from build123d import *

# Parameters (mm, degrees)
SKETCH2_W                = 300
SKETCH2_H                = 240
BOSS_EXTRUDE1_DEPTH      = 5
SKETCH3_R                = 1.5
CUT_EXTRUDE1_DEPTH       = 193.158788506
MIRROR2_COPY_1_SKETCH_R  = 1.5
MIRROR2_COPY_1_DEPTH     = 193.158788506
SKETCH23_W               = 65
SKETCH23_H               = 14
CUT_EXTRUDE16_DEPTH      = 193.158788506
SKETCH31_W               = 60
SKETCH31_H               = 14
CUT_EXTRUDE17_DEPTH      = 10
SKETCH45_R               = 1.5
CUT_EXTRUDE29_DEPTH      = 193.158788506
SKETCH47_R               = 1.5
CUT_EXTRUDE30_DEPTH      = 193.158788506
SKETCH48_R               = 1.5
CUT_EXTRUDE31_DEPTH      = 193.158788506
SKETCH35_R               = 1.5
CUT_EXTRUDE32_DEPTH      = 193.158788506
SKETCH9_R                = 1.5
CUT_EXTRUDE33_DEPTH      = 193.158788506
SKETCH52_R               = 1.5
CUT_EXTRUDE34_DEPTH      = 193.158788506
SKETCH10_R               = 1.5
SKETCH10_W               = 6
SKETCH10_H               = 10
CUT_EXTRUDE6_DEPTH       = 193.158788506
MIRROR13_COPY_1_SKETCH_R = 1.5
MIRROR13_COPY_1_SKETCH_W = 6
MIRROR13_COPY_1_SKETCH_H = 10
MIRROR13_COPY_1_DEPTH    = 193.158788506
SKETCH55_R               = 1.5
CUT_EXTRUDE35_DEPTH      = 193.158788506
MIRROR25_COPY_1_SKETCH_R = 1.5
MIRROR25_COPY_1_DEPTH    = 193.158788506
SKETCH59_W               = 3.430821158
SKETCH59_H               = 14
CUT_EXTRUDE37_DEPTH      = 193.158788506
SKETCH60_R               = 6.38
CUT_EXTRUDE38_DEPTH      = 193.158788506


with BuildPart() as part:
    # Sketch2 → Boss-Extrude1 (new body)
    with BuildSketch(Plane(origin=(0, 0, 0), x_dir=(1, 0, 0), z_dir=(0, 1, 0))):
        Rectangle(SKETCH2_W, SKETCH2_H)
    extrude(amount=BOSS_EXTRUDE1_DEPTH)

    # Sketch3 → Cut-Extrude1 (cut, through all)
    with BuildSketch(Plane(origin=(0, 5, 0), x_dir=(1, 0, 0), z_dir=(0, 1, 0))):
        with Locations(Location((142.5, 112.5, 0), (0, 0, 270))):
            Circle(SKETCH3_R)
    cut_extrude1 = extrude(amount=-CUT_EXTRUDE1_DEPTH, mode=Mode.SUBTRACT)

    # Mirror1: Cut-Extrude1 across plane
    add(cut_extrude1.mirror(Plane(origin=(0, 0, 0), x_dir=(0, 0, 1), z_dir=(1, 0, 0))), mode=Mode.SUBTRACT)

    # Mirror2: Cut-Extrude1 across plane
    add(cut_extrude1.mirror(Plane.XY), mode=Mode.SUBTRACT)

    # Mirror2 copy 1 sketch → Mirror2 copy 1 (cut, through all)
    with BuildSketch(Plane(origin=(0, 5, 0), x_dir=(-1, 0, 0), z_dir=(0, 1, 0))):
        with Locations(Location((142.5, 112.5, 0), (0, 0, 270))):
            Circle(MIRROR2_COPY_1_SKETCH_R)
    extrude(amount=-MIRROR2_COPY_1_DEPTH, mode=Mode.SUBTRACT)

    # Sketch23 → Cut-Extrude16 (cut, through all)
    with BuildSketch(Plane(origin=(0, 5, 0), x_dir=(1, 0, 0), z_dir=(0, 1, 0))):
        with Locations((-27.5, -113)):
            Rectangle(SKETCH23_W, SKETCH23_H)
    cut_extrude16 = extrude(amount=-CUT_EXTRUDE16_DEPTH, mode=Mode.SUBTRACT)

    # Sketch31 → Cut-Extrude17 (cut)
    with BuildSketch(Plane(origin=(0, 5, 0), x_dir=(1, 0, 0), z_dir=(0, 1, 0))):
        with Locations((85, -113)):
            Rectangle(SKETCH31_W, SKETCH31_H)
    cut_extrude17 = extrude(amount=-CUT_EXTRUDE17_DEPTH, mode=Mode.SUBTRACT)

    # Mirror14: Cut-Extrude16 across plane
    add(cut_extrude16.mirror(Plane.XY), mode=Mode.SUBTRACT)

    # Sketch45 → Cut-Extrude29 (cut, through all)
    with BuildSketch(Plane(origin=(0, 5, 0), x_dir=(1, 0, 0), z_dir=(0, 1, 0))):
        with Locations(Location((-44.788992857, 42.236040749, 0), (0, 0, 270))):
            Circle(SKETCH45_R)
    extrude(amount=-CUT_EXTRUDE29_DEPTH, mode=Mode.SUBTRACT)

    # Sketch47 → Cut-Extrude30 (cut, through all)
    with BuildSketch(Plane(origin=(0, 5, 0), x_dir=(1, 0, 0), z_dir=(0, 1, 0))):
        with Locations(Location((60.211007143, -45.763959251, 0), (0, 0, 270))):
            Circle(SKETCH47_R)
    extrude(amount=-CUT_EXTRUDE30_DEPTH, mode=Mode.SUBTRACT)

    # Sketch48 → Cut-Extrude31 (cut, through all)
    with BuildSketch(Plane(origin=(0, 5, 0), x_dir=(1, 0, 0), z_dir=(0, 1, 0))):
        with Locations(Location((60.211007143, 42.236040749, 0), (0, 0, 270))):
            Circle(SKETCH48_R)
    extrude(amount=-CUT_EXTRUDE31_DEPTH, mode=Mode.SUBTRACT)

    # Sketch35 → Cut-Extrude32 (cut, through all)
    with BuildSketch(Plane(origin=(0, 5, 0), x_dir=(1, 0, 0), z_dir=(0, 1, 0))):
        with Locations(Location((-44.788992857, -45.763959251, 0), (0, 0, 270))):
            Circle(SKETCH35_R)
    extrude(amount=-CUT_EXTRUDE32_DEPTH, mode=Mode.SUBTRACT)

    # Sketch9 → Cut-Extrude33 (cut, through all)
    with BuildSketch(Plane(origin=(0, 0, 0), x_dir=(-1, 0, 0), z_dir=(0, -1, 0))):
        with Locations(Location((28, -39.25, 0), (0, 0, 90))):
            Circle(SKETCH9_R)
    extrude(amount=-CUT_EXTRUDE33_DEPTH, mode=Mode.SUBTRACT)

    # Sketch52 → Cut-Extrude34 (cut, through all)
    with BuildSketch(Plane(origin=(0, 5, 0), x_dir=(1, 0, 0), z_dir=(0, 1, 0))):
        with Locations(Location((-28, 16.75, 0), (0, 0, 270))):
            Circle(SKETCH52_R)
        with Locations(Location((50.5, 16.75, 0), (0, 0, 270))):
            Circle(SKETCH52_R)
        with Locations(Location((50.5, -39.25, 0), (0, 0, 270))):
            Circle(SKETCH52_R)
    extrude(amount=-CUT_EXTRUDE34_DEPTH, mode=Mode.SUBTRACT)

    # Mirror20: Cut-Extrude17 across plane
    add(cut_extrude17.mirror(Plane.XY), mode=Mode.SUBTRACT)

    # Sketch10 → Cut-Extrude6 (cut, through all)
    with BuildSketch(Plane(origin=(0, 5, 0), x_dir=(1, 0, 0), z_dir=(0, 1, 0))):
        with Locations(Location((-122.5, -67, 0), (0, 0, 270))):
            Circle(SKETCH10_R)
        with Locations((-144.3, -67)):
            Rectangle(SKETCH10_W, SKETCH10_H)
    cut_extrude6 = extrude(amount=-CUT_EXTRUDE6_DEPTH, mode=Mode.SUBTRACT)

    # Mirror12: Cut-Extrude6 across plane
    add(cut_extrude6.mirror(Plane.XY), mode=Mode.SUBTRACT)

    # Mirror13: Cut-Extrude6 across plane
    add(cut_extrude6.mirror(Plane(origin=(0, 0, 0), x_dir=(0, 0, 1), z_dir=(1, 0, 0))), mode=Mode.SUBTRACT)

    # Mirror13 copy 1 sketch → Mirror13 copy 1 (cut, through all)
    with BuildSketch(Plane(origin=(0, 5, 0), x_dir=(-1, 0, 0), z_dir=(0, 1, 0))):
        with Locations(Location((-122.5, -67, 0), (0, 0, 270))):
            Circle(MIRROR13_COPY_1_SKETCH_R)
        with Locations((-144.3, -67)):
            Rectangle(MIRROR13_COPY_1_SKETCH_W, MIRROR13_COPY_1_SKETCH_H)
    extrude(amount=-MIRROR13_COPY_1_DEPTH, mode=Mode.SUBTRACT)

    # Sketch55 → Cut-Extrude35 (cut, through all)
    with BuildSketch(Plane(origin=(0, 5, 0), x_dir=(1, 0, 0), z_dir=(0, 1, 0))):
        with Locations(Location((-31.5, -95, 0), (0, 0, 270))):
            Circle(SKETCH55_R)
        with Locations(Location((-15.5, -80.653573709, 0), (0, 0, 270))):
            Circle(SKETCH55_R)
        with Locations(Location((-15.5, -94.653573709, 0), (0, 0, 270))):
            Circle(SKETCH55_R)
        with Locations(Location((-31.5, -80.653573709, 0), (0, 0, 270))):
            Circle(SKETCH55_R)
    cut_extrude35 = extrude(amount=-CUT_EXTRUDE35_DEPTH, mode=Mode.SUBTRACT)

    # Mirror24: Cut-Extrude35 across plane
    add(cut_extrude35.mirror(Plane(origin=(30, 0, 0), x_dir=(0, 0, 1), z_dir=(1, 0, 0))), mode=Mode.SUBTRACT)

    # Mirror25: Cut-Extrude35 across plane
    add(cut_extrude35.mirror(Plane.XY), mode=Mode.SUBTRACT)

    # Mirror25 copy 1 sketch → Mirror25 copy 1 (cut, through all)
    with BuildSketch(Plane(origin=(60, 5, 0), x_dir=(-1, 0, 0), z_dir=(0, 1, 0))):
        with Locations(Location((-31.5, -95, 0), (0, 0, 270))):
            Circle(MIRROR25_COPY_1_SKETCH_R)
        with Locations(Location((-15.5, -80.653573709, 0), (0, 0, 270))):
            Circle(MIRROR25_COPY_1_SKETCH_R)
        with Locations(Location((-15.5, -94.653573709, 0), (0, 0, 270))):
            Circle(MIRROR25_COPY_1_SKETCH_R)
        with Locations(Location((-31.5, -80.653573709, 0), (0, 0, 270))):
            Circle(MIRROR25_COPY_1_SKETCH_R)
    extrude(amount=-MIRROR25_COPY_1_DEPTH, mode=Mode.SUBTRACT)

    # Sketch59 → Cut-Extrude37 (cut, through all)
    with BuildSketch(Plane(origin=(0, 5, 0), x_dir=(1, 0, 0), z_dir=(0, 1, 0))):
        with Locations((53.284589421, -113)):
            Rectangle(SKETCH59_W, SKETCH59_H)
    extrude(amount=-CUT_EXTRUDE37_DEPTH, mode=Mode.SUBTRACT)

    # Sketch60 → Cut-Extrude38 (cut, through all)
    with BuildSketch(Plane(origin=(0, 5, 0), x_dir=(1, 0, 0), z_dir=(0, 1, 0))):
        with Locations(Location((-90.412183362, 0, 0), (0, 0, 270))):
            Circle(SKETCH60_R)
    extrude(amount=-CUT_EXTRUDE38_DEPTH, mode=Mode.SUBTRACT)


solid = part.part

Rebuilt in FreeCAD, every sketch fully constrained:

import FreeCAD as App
import Part
import Sketcher
from FreeCAD import Vector

doc = App.newDocument("Part")
body = doc.addObject("PartDesign::Body", "Body")

# Sketch on XZ plane
sketch1 = body.newObject("Sketcher::SketchObject", "Sketch")
sketch1.AttachmentSupport = (doc.getObject("XZ_Plane"), [""])
sketch1.MapMode = "FlatFace"
sketch1.addGeometry(Part.LineSegment(Vector(-150, -120, 0), Vector(-150, 120, 0)), False)
sketch1.addGeometry(Part.LineSegment(Vector(-150, 120, 0), Vector(150, 120, 0)), False)
sketch1.addGeometry(Part.LineSegment(Vector(150, 120, 0), Vector(150, -120, 0)), False)
sketch1.addGeometry(Part.LineSegment(Vector(150, -120, 0), Vector(-150, -120, 0)), False)
sketch1.addConstraint(Sketcher.Constraint("Coincident", 0, 2, 1, 1))
sketch1.addConstraint(Sketcher.Constraint("Coincident", 1, 2, 2, 1))
sketch1.addConstraint(Sketcher.Constraint("Coincident", 2, 2, 3, 1))
sketch1.addConstraint(Sketcher.Constraint("Coincident", 3, 2, 0, 1))
sketch1.addConstraint(Sketcher.Constraint("Vertical", 0))
sketch1.addConstraint(Sketcher.Constraint("Horizontal", 1))
sketch1.addConstraint(Sketcher.Constraint("Vertical", 2))
sketch1.addConstraint(Sketcher.Constraint("Horizontal", 3))
sketch1.addConstraint(Sketcher.Constraint("Symmetric", 0, 2, 2, 2, -1, 1))
sketch1.addConstraint(Sketcher.Constraint("DistanceX", 1, 1, 1, 2, 300.0))
sketch1.addConstraint(Sketcher.Constraint("DistanceY", 0, 1, 0, 2, 240.0))
pad1 = body.newObject("PartDesign::Pad", "Pad")
pad1.Profile = sketch1
pad1.Length = 5
pad1.Reversed = True

# Sketch on XZ plane
sketch2 = body.newObject("Sketcher::SketchObject", "Sketch001")
sketch2.AttachmentSupport = (doc.getObject("XZ_Plane"), [""])
sketch2.MapMode = "FlatFace"
sketch2.AttachmentOffset = App.Placement(Vector(0, 0, -5), App.Rotation())
sketch2.addGeometry(Part.Circle(Vector(142.5, -112.5, 0), Vector(0, 0, 1), 1.5), False)
sketch2.addConstraint(Sketcher.Constraint("Diameter", 0, 3.0))
sketch2.addConstraint(Sketcher.Constraint("DistanceX", -1, 1, 0, 3, 142.5))
sketch2.addConstraint(Sketcher.Constraint("DistanceY", 0, 3, -1, 1, 112.5))
pocket1 = body.newObject("PartDesign::Pocket", "Pocket")
pocket1.Profile = sketch2
pocket1.Type = "ThroughAll"
pocket1.Reversed = True
doc.recompute()

mirrored = body.newObject("PartDesign::Mirrored", "Mirrored")
mirrored.Originals = [pocket1]
mirrored.MirrorPlane = (doc.getObject("YZ_Plane"), [""])
body.Tip = mirrored
doc.recompute()

mirrored2 = body.newObject("PartDesign::Mirrored", "Mirrored001")
mirrored2.Originals = [pocket1]
mirrored2.MirrorPlane = (doc.getObject("XY_Plane"), [""])
body.Tip = mirrored2

# Sketch on XZ plane
sketch3 = body.newObject("Sketcher::SketchObject", "Sketch002")
sketch3.AttachmentSupport = (doc.getObject("XZ_Plane"), [""])
sketch3.MapMode = "FlatFace"
sketch3.AttachmentOffset = App.Placement(Vector(0, 0, -5), App.Rotation())
sketch3.addGeometry(Part.Circle(Vector(-142.5, 112.5, 0), Vector(0, 0, 1), 1.5), False)
sketch3.addConstraint(Sketcher.Constraint("Diameter", 0, 3.0))
sketch3.addConstraint(Sketcher.Constraint("DistanceX", 0, 3, -1, 1, 142.5))
sketch3.addConstraint(Sketcher.Constraint("DistanceY", -1, 1, 0, 3, 112.5))
pocket2 = body.newObject("PartDesign::Pocket", "Pocket001")
pocket2.Profile = sketch3
pocket2.Type = "ThroughAll"
pocket2.Reversed = True

# Sketch on XZ plane
sketch4 = body.newObject("Sketcher::SketchObject", "Sketch003")
sketch4.AttachmentSupport = (doc.getObject("XZ_Plane"), [""])
sketch4.MapMode = "FlatFace"
sketch4.AttachmentOffset = App.Placement(Vector(0, 0, -5), App.Rotation())
sketch4.addGeometry(Part.LineSegment(Vector(-60, 106, 0), Vector(-60, 120, 0)), False)
sketch4.addGeometry(Part.LineSegment(Vector(-60, 120, 0), Vector(5, 120, 0)), False)
sketch4.addGeometry(Part.LineSegment(Vector(5, 120, 0), Vector(5, 106, 0)), False)
sketch4.addGeometry(Part.LineSegment(Vector(5, 106, 0), Vector(-60, 106, 0)), False)
sketch4.addConstraint(Sketcher.Constraint("Coincident", 0, 2, 1, 1))
sketch4.addConstraint(Sketcher.Constraint("Coincident", 1, 2, 2, 1))
sketch4.addConstraint(Sketcher.Constraint("Coincident", 2, 2, 3, 1))
sketch4.addConstraint(Sketcher.Constraint("Coincident", 3, 2, 0, 1))
sketch4.addConstraint(Sketcher.Constraint("Vertical", 0))
sketch4.addConstraint(Sketcher.Constraint("Horizontal", 1))
sketch4.addConstraint(Sketcher.Constraint("Vertical", 2))
sketch4.addConstraint(Sketcher.Constraint("Horizontal", 3))
sketch4.addConstraint(Sketcher.Constraint("DistanceX", 1, 1, 1, 2, 65.0))
sketch4.addConstraint(Sketcher.Constraint("DistanceY", 0, 1, 0, 2, 14.0))
sketch4.addConstraint(Sketcher.Constraint("DistanceX", 0, 2, -1, 1, 60.0))
sketch4.addConstraint(Sketcher.Constraint("DistanceY", -1, 1, 0, 2, 120.0))
pocket3 = body.newObject("PartDesign::Pocket", "Pocket002")
pocket3.Profile = sketch4
pocket3.Type = "ThroughAll"
pocket3.Reversed = True

# Sketch on XZ plane
sketch5 = body.newObject("Sketcher::SketchObject", "Sketch004")
sketch5.AttachmentSupport = (doc.getObject("XZ_Plane"), [""])
sketch5.MapMode = "FlatFace"
sketch5.AttachmentOffset = App.Placement(Vector(0, 0, -5), App.Rotation())
sketch5.addGeometry(Part.LineSegment(Vector(55, 106, 0), Vector(55, 120, 0)), False)
sketch5.addGeometry(Part.LineSegment(Vector(55, 120, 0), Vector(115, 120, 0)), False)
sketch5.addGeometry(Part.LineSegment(Vector(115, 120, 0), Vector(115, 106, 0)), False)
sketch5.addGeometry(Part.LineSegment(Vector(115, 106, 0), Vector(55, 106, 0)), False)
sketch5.addConstraint(Sketcher.Constraint("Coincident", 0, 2, 1, 1))
sketch5.addConstraint(Sketcher.Constraint("Coincident", 1, 2, 2, 1))
sketch5.addConstraint(Sketcher.Constraint("Coincident", 2, 2, 3, 1))
sketch5.addConstraint(Sketcher.Constraint("Coincident", 3, 2, 0, 1))
sketch5.addConstraint(Sketcher.Constraint("Vertical", 0))
sketch5.addConstraint(Sketcher.Constraint("Horizontal", 1))
sketch5.addConstraint(Sketcher.Constraint("Vertical", 2))
sketch5.addConstraint(Sketcher.Constraint("Horizontal", 3))
sketch5.addConstraint(Sketcher.Constraint("DistanceX", 1, 1, 1, 2, 60.0))
sketch5.addConstraint(Sketcher.Constraint("DistanceY", 0, 1, 0, 2, 14.0))
sketch5.addConstraint(Sketcher.Constraint("DistanceX", -1, 1, 0, 2, 55.0))
sketch5.addConstraint(Sketcher.Constraint("DistanceY", -1, 1, 0, 2, 120.0))
pocket4 = body.newObject("PartDesign::Pocket", "Pocket003")
pocket4.Profile = sketch5
pocket4.Length = 10
pocket4.Reversed = True
doc.recompute()

mirrored3 = body.newObject("PartDesign::Mirrored", "Mirrored002")
mirrored3.Originals = [pocket3]
mirrored3.MirrorPlane = (doc.getObject("XY_Plane"), [""])
body.Tip = mirrored3

# Sketch on XZ plane
sketch6 = body.newObject("Sketcher::SketchObject", "Sketch005")
sketch6.AttachmentSupport = (doc.getObject("XZ_Plane"), [""])
sketch6.MapMode = "FlatFace"
sketch6.AttachmentOffset = App.Placement(Vector(0, 0, -5), App.Rotation())
sketch6.addGeometry(Part.Circle(Vector(-44.788993, -42.236041, 0), Vector(0, 0, 1), 1.5), False)
sketch6.addConstraint(Sketcher.Constraint("Diameter", 0, 3.0))
sketch6.addConstraint(Sketcher.Constraint("DistanceY", 0, 3, -1, 1, 42.236041))
sketch6.addConstraint(Sketcher.Constraint("DistanceX", 0, 3, -1, 1, 44.788993))
pocket5 = body.newObject("PartDesign::Pocket", "Pocket004")
pocket5.Profile = sketch6
pocket5.Type = "ThroughAll"
pocket5.Reversed = True

# Sketch on XZ plane
sketch7 = body.newObject("Sketcher::SketchObject", "Sketch006")
sketch7.AttachmentSupport = (doc.getObject("XZ_Plane"), [""])
sketch7.MapMode = "FlatFace"
sketch7.AttachmentOffset = App.Placement(Vector(0, 0, -5), App.Rotation())
sketch7.addGeometry(Part.Circle(Vector(60.211007, 45.763959, 0), Vector(0, 0, 1), 1.5), False)
sketch7.addConstraint(Sketcher.Constraint("Diameter", 0, 3.0))
sketch7.addConstraint(Sketcher.Constraint("DistanceY", -1, 1, 0, 3, 45.763959))
sketch7.addConstraint(Sketcher.Constraint("DistanceX", -1, 1, 0, 3, 60.211007))
pocket6 = body.newObject("PartDesign::Pocket", "Pocket005")
pocket6.Profile = sketch7
pocket6.Type = "ThroughAll"
pocket6.Reversed = True

# Sketch on XZ plane
sketch8 = body.newObject("Sketcher::SketchObject", "Sketch007")
sketch8.AttachmentSupport = (doc.getObject("XZ_Plane"), [""])
sketch8.MapMode = "FlatFace"
sketch8.AttachmentOffset = App.Placement(Vector(0, 0, -5), App.Rotation())
sketch8.addGeometry(Part.Circle(Vector(60.211007, -42.236041, 0), Vector(0, 0, 1), 1.5), False)
sketch8.addConstraint(Sketcher.Constraint("Diameter", 0, 3.0))
sketch8.addConstraint(Sketcher.Constraint("DistanceY", 0, 3, -1, 1, 42.236041))
sketch8.addConstraint(Sketcher.Constraint("DistanceX", -1, 1, 0, 3, 60.211007))
pocket7 = body.newObject("PartDesign::Pocket", "Pocket006")
pocket7.Profile = sketch8
pocket7.Type = "ThroughAll"
pocket7.Reversed = True

# Sketch on XZ plane
sketch9 = body.newObject("Sketcher::SketchObject", "Sketch008")
sketch9.AttachmentSupport = (doc.getObject("XZ_Plane"), [""])
sketch9.MapMode = "FlatFace"
sketch9.AttachmentOffset = App.Placement(Vector(0, 0, -5), App.Rotation())
sketch9.addGeometry(Part.Circle(Vector(-44.788993, 45.763959, 0), Vector(0, 0, 1), 1.5), False)
sketch9.addConstraint(Sketcher.Constraint("Diameter", 0, 3.0))
sketch9.addConstraint(Sketcher.Constraint("DistanceY", -1, 1, 0, 3, 45.763959))
sketch9.addConstraint(Sketcher.Constraint("DistanceX", 0, 3, -1, 1, 44.788993))
pocket8 = body.newObject("PartDesign::Pocket", "Pocket007")
pocket8.Profile = sketch9
pocket8.Type = "ThroughAll"
pocket8.Reversed = True

# Sketch on XZ plane
sketch10 = body.newObject("Sketcher::SketchObject", "Sketch009")
sketch10.AttachmentSupport = (doc.getObject("XZ_Plane"), [""])
sketch10.MapMode = "FlatFace"
sketch10.addGeometry(Part.Circle(Vector(-28, 39.25, 0), Vector(0, 0, 1), 1.5), False)
sketch10.addConstraint(Sketcher.Constraint("Diameter", 0, 3.0))
sketch10.addConstraint(Sketcher.Constraint("DistanceX", 0, 3, -1, 1, 28.0))
sketch10.addConstraint(Sketcher.Constraint("DistanceY", -1, 1, 0, 3, 39.25))
pocket9 = body.newObject("PartDesign::Pocket", "Pocket008")
pocket9.Profile = sketch10
pocket9.Type = "ThroughAll"

# Sketch on XZ plane
sketch11 = body.newObject("Sketcher::SketchObject", "Sketch010")
sketch11.AttachmentSupport = (doc.getObject("XZ_Plane"), [""])
sketch11.MapMode = "FlatFace"
sketch11.AttachmentOffset = App.Placement(Vector(0, 0, -5), App.Rotation())
sketch11.addGeometry(Part.Circle(Vector(-28, -16.75, 0), Vector(0, 0, 1), 1.5), False)
sketch11.addGeometry(Part.Circle(Vector(50.5, -16.75, 0), Vector(0, 0, 1), 1.5), False)
sketch11.addGeometry(Part.Circle(Vector(50.5, 39.25, 0), Vector(0, 0, 1), 1.5), False)
sketch11.addConstraint(Sketcher.Constraint("Equal", 0, 1))
sketch11.addConstraint(Sketcher.Constraint("Equal", 1, 2))
sketch11.addConstraint(Sketcher.Constraint("Horizontal", 0, 3, 1, 3))
sketch11.addConstraint(Sketcher.Constraint("Vertical", 1, 3, 2, 3))
sketch11.addConstraint(Sketcher.Constraint("Diameter", 0, 3.0))
sketch11.addConstraint(Sketcher.Constraint("DistanceX", 0, 3, -1, 1, 28.0))
sketch11.addConstraint(Sketcher.Constraint("DistanceY", 1, 3, 2, 3, 56.0))
sketch11.addConstraint(Sketcher.Constraint("DistanceX", -1, 1, 1, 3, 50.5))
sketch11.addConstraint(Sketcher.Constraint("DistanceY", 0, 3, -1, 1, 16.75))
pocket10 = body.newObject("PartDesign::Pocket", "Pocket009")
pocket10.Profile = sketch11
pocket10.Type = "ThroughAll"
pocket10.Reversed = True
doc.recompute()

mirrored4 = body.newObject("PartDesign::Mirrored", "Mirrored003")
mirrored4.Originals = [pocket4]
mirrored4.MirrorPlane = (doc.getObject("XY_Plane"), [""])
body.Tip = mirrored4

# Sketch on XZ plane
sketch12 = body.newObject("Sketcher::SketchObject", "Sketch011")
sketch12.AttachmentSupport = (doc.getObject("XZ_Plane"), [""])
sketch12.MapMode = "FlatFace"
sketch12.AttachmentOffset = App.Placement(Vector(0, 0, -5), App.Rotation())
sketch12.addGeometry(Part.Circle(Vector(-122.5, 67, 0), Vector(0, 0, 1), 1.5), False)
sketch12.addGeometry(Part.LineSegment(Vector(-147.3, 62, 0), Vector(-147.3, 72, 0)), False)
sketch12.addGeometry(Part.LineSegment(Vector(-147.3, 72, 0), Vector(-141.3, 72, 0)), False)
sketch12.addGeometry(Part.LineSegment(Vector(-141.3, 72, 0), Vector(-141.3, 62, 0)), False)
sketch12.addGeometry(Part.LineSegment(Vector(-141.3, 62, 0), Vector(-147.3, 62, 0)), False)
sketch12.addConstraint(Sketcher.Constraint("Coincident", 1, 2, 2, 1))
sketch12.addConstraint(Sketcher.Constraint("Coincident", 2, 2, 3, 1))
sketch12.addConstraint(Sketcher.Constraint("Coincident", 3, 2, 4, 1))
sketch12.addConstraint(Sketcher.Constraint("Coincident", 4, 2, 1, 1))
sketch12.addConstraint(Sketcher.Constraint("Vertical", 1))
sketch12.addConstraint(Sketcher.Constraint("Horizontal", 2))
sketch12.addConstraint(Sketcher.Constraint("Vertical", 3))
sketch12.addConstraint(Sketcher.Constraint("Horizontal", 4))
sketch12.addConstraint(Sketcher.Constraint("Diameter", 0, 3.0))
sketch12.addConstraint(Sketcher.Constraint("DistanceX", 2, 1, 2, 2, 6.0))
sketch12.addConstraint(Sketcher.Constraint("DistanceY", 1, 1, 1, 2, 10.0))
sketch12.addConstraint(Sketcher.Constraint("DistanceY", -1, 1, 0, 3, 67.0))
sketch12.addConstraint(Sketcher.Constraint("DistanceY", -1, 1, 1, 2, 72.0))
sketch12.addConstraint(Sketcher.Constraint("DistanceX", 0, 3, -1, 1, 122.5))
sketch12.addConstraint(Sketcher.Constraint("DistanceX", 1, 2, -1, 1, 147.3))
pocket11 = body.newObject("PartDesign::Pocket", "Pocket010")
pocket11.Profile = sketch12
pocket11.Type = "ThroughAll"
pocket11.Reversed = True
doc.recompute()

mirrored5 = body.newObject("PartDesign::Mirrored", "Mirrored004")
mirrored5.Originals = [pocket11]
mirrored5.MirrorPlane = (doc.getObject("XY_Plane"), [""])
body.Tip = mirrored5
doc.recompute()

mirrored6 = body.newObject("PartDesign::Mirrored", "Mirrored005")
mirrored6.Originals = [pocket11]
mirrored6.MirrorPlane = (doc.getObject("YZ_Plane"), [""])
body.Tip = mirrored6

# Sketch on XZ plane
sketch13 = body.newObject("Sketcher::SketchObject", "Sketch012")
sketch13.AttachmentSupport = (doc.getObject("XZ_Plane"), [""])
sketch13.MapMode = "FlatFace"
sketch13.AttachmentOffset = App.Placement(Vector(0, 0, -5), App.Rotation())
sketch13.addGeometry(Part.Circle(Vector(122.5, -67, 0), Vector(0, 0, 1), 1.5), False)
sketch13.addGeometry(Part.LineSegment(Vector(147.3, -62, 0), Vector(147.3, -72, 0)), False)
sketch13.addGeometry(Part.LineSegment(Vector(147.3, -72, 0), Vector(141.3, -72, 0)), False)
sketch13.addGeometry(Part.LineSegment(Vector(141.3, -72, 0), Vector(141.3, -62, 0)), False)
sketch13.addGeometry(Part.LineSegment(Vector(141.3, -62, 0), Vector(147.3, -62, 0)), False)
sketch13.addConstraint(Sketcher.Constraint("Coincident", 1, 2, 2, 1))
sketch13.addConstraint(Sketcher.Constraint("Coincident", 2, 2, 3, 1))
sketch13.addConstraint(Sketcher.Constraint("Coincident", 3, 2, 4, 1))
sketch13.addConstraint(Sketcher.Constraint("Coincident", 4, 2, 1, 1))
sketch13.addConstraint(Sketcher.Constraint("Vertical", 1))
sketch13.addConstraint(Sketcher.Constraint("Horizontal", 2))
sketch13.addConstraint(Sketcher.Constraint("Vertical", 3))
sketch13.addConstraint(Sketcher.Constraint("Horizontal", 4))
sketch13.addConstraint(Sketcher.Constraint("Diameter", 0, 3.0))
sketch13.addConstraint(Sketcher.Constraint("DistanceX", 2, 2, 2, 1, 6.0))
sketch13.addConstraint(Sketcher.Constraint("DistanceY", 1, 2, 1, 1, 10.0))
sketch13.addConstraint(Sketcher.Constraint("DistanceY", 0, 3, -1, 1, 67.0))
sketch13.addConstraint(Sketcher.Constraint("DistanceY", 1, 2, -1, 1, 72.0))
sketch13.addConstraint(Sketcher.Constraint("DistanceX", -1, 1, 0, 3, 122.5))
sketch13.addConstraint(Sketcher.Constraint("DistanceX", -1, 1, 1, 2, 147.3))
pocket12 = body.newObject("PartDesign::Pocket", "Pocket011")
pocket12.Profile = sketch13
pocket12.Type = "ThroughAll"
pocket12.Reversed = True

# Sketch on XZ plane
sketch14 = body.newObject("Sketcher::SketchObject", "Sketch013")
sketch14.AttachmentSupport = (doc.getObject("XZ_Plane"), [""])
sketch14.MapMode = "FlatFace"
sketch14.AttachmentOffset = App.Placement(Vector(0, 0, -5), App.Rotation())
sketch14.addGeometry(Part.Circle(Vector(-31.5, 95, 0), Vector(0, 0, 1), 1.5), False)
sketch14.addGeometry(Part.Circle(Vector(-15.5, 80.653574, 0), Vector(0, 0, 1), 1.5), False)
sketch14.addGeometry(Part.Circle(Vector(-15.5, 94.653574, 0), Vector(0, 0, 1), 1.5), False)
sketch14.addGeometry(Part.Circle(Vector(-31.5, 80.653574, 0), Vector(0, 0, 1), 1.5), False)
sketch14.addConstraint(Sketcher.Constraint("Equal", 0, 1))
sketch14.addConstraint(Sketcher.Constraint("Equal", 1, 2))
sketch14.addConstraint(Sketcher.Constraint("Equal", 2, 3))
sketch14.addConstraint(Sketcher.Constraint("Horizontal", 1, 3, 3, 3))
sketch14.addConstraint(Sketcher.Constraint("Vertical", 1, 3, 2, 3))
sketch14.addConstraint(Sketcher.Constraint("Vertical", 0, 3, 3, 3))
sketch14.addConstraint(Sketcher.Constraint("Diameter", 0, 3.0))
sketch14.addConstraint(Sketcher.Constraint("DistanceY", -1, 1, 0, 3, 95.0))
sketch14.addConstraint(Sketcher.Constraint("DistanceX", 0, 3, 1, 3, 16.0))
sketch14.addConstraint(Sketcher.Constraint("DistanceY", 1, 3, 2, 3, 14.0))
sketch14.addConstraint(Sketcher.Constraint("DistanceX", 0, 3, -1, 1, 31.5))
sketch14.addConstraint(Sketcher.Constraint("DistanceY", -1, 1, 1, 3, 80.653574))
pocket13 = body.newObject("PartDesign::Pocket", "Pocket012")
pocket13.Profile = sketch14
pocket13.Type = "ThroughAll"
pocket13.Reversed = True
doc.recompute()

datumplane = body.newObject("PartDesign::Plane", "DatumPlane")
datumplane.AttachmentSupport = (doc.getObject("YZ_Plane"), [""])
datumplane.MapMode = "FlatFace"
datumplane.AttachmentOffset = App.Placement(Vector(0, 0, 30), App.Rotation())
mirrored7 = body.newObject("PartDesign::Mirrored", "Mirrored006")
mirrored7.Originals = [pocket13]
mirrored7.MirrorPlane = (datumplane, [""])
body.Tip = mirrored7
doc.recompute()

mirrored8 = body.newObject("PartDesign::Mirrored", "Mirrored007")
mirrored8.Originals = [pocket13]
mirrored8.MirrorPlane = (doc.getObject("XY_Plane"), [""])
body.Tip = mirrored8

# Sketch on XZ plane
sketch15 = body.newObject("Sketcher::SketchObject", "Sketch014")
sketch15.AttachmentSupport = (doc.getObject("XZ_Plane"), [""])
sketch15.MapMode = "FlatFace"
sketch15.AttachmentOffset = App.Placement(Vector(0, 0, -5), App.Rotation())
sketch15.addGeometry(Part.Circle(Vector(91.5, -95, 0), Vector(0, 0, 1), 1.5), False)
sketch15.addGeometry(Part.Circle(Vector(75.5, -80.653574, 0), Vector(0, 0, 1), 1.5), False)
sketch15.addGeometry(Part.Circle(Vector(75.5, -94.653574, 0), Vector(0, 0, 1), 1.5), False)
sketch15.addGeometry(Part.Circle(Vector(91.5, -80.653574, 0), Vector(0, 0, 1), 1.5), False)
sketch15.addConstraint(Sketcher.Constraint("Equal", 0, 1))
sketch15.addConstraint(Sketcher.Constraint("Equal", 1, 2))
sketch15.addConstraint(Sketcher.Constraint("Equal", 2, 3))
sketch15.addConstraint(Sketcher.Constraint("Horizontal", 1, 3, 3, 3))
sketch15.addConstraint(Sketcher.Constraint("Vertical", 1, 3, 2, 3))
sketch15.addConstraint(Sketcher.Constraint("Vertical", 0, 3, 3, 3))
sketch15.addConstraint(Sketcher.Constraint("Diameter", 0, 3.0))
sketch15.addConstraint(Sketcher.Constraint("DistanceY", 0, 3, -1, 1, 95.0))
sketch15.addConstraint(Sketcher.Constraint("DistanceX", 1, 3, 0, 3, 16.0))
sketch15.addConstraint(Sketcher.Constraint("DistanceY", 2, 3, 1, 3, 14.0))
sketch15.addConstraint(Sketcher.Constraint("DistanceX", -1, 1, 0, 3, 91.5))
sketch15.addConstraint(Sketcher.Constraint("DistanceY", 1, 3, -1, 1, 80.653574))
pocket14 = body.newObject("PartDesign::Pocket", "Pocket013")
pocket14.Profile = sketch15
pocket14.Type = "ThroughAll"
pocket14.Reversed = True

# Sketch on XZ plane
sketch16 = body.newObject("Sketcher::SketchObject", "Sketch015")
sketch16.AttachmentSupport = (doc.getObject("XZ_Plane"), [""])
sketch16.MapMode = "FlatFace"
sketch16.AttachmentOffset = App.Placement(Vector(0, 0, -5), App.Rotation())
sketch16.addGeometry(Part.LineSegment(Vector(51.569179, 106, 0), Vector(51.569179, 120, 0)), False)
sketch16.addGeometry(Part.LineSegment(Vector(51.569179, 120, 0), Vector(55, 120, 0)), False)
sketch16.addGeometry(Part.LineSegment(Vector(55, 120, 0), Vector(55, 106, 0)), False)
sketch16.addGeometry(Part.LineSegment(Vector(55, 106, 0), Vector(51.569179, 106, 0)), False)
sketch16.addConstraint(Sketcher.Constraint("Coincident", 0, 2, 1, 1))
sketch16.addConstraint(Sketcher.Constraint("Coincident", 1, 2, 2, 1))
sketch16.addConstraint(Sketcher.Constraint("Coincident", 2, 2, 3, 1))
sketch16.addConstraint(Sketcher.Constraint("Coincident", 3, 2, 0, 1))
sketch16.addConstraint(Sketcher.Constraint("Vertical", 0))
sketch16.addConstraint(Sketcher.Constraint("Horizontal", 1))
sketch16.addConstraint(Sketcher.Constraint("Vertical", 2))
sketch16.addConstraint(Sketcher.Constraint("Horizontal", 3))
sketch16.addConstraint(Sketcher.Constraint("DistanceY", 0, 1, 0, 2, 14.0))
sketch16.addConstraint(Sketcher.Constraint("DistanceY", -1, 1, 0, 2, 120.0))
sketch16.addConstraint(Sketcher.Constraint("DistanceX", -1, 1, 1, 2, 55.0))
sketch16.addConstraint(Sketcher.Constraint("DistanceX", 1, 1, 1, 2, 3.430821))
pocket15 = body.newObject("PartDesign::Pocket", "Pocket014")
pocket15.Profile = sketch16
pocket15.Type = "ThroughAll"
pocket15.Reversed = True

# Sketch on XZ plane
sketch17 = body.newObject("Sketcher::SketchObject", "Sketch016")
sketch17.AttachmentSupport = (doc.getObject("XZ_Plane"), [""])
sketch17.MapMode = "FlatFace"
sketch17.AttachmentOffset = App.Placement(Vector(0, 0, -5), App.Rotation())
sketch17.addGeometry(Part.Circle(Vector(-90.412183, 0, 0), Vector(0, 0, 1), 6.38), False)
sketch17.addConstraint(Sketcher.Constraint("PointOnObject", 0, 3, -1))
sketch17.addConstraint(Sketcher.Constraint("Diameter", 0, 12.76))
sketch17.addConstraint(Sketcher.Constraint("DistanceX", 0, 3, -1, 1, 90.412183))
pocket16 = body.newObject("PartDesign::Pocket", "Pocket015")
pocket16.Profile = sketch17
pocket16.Type = "ThroughAll"
pocket16.Reversed = True

doc.recompute()
